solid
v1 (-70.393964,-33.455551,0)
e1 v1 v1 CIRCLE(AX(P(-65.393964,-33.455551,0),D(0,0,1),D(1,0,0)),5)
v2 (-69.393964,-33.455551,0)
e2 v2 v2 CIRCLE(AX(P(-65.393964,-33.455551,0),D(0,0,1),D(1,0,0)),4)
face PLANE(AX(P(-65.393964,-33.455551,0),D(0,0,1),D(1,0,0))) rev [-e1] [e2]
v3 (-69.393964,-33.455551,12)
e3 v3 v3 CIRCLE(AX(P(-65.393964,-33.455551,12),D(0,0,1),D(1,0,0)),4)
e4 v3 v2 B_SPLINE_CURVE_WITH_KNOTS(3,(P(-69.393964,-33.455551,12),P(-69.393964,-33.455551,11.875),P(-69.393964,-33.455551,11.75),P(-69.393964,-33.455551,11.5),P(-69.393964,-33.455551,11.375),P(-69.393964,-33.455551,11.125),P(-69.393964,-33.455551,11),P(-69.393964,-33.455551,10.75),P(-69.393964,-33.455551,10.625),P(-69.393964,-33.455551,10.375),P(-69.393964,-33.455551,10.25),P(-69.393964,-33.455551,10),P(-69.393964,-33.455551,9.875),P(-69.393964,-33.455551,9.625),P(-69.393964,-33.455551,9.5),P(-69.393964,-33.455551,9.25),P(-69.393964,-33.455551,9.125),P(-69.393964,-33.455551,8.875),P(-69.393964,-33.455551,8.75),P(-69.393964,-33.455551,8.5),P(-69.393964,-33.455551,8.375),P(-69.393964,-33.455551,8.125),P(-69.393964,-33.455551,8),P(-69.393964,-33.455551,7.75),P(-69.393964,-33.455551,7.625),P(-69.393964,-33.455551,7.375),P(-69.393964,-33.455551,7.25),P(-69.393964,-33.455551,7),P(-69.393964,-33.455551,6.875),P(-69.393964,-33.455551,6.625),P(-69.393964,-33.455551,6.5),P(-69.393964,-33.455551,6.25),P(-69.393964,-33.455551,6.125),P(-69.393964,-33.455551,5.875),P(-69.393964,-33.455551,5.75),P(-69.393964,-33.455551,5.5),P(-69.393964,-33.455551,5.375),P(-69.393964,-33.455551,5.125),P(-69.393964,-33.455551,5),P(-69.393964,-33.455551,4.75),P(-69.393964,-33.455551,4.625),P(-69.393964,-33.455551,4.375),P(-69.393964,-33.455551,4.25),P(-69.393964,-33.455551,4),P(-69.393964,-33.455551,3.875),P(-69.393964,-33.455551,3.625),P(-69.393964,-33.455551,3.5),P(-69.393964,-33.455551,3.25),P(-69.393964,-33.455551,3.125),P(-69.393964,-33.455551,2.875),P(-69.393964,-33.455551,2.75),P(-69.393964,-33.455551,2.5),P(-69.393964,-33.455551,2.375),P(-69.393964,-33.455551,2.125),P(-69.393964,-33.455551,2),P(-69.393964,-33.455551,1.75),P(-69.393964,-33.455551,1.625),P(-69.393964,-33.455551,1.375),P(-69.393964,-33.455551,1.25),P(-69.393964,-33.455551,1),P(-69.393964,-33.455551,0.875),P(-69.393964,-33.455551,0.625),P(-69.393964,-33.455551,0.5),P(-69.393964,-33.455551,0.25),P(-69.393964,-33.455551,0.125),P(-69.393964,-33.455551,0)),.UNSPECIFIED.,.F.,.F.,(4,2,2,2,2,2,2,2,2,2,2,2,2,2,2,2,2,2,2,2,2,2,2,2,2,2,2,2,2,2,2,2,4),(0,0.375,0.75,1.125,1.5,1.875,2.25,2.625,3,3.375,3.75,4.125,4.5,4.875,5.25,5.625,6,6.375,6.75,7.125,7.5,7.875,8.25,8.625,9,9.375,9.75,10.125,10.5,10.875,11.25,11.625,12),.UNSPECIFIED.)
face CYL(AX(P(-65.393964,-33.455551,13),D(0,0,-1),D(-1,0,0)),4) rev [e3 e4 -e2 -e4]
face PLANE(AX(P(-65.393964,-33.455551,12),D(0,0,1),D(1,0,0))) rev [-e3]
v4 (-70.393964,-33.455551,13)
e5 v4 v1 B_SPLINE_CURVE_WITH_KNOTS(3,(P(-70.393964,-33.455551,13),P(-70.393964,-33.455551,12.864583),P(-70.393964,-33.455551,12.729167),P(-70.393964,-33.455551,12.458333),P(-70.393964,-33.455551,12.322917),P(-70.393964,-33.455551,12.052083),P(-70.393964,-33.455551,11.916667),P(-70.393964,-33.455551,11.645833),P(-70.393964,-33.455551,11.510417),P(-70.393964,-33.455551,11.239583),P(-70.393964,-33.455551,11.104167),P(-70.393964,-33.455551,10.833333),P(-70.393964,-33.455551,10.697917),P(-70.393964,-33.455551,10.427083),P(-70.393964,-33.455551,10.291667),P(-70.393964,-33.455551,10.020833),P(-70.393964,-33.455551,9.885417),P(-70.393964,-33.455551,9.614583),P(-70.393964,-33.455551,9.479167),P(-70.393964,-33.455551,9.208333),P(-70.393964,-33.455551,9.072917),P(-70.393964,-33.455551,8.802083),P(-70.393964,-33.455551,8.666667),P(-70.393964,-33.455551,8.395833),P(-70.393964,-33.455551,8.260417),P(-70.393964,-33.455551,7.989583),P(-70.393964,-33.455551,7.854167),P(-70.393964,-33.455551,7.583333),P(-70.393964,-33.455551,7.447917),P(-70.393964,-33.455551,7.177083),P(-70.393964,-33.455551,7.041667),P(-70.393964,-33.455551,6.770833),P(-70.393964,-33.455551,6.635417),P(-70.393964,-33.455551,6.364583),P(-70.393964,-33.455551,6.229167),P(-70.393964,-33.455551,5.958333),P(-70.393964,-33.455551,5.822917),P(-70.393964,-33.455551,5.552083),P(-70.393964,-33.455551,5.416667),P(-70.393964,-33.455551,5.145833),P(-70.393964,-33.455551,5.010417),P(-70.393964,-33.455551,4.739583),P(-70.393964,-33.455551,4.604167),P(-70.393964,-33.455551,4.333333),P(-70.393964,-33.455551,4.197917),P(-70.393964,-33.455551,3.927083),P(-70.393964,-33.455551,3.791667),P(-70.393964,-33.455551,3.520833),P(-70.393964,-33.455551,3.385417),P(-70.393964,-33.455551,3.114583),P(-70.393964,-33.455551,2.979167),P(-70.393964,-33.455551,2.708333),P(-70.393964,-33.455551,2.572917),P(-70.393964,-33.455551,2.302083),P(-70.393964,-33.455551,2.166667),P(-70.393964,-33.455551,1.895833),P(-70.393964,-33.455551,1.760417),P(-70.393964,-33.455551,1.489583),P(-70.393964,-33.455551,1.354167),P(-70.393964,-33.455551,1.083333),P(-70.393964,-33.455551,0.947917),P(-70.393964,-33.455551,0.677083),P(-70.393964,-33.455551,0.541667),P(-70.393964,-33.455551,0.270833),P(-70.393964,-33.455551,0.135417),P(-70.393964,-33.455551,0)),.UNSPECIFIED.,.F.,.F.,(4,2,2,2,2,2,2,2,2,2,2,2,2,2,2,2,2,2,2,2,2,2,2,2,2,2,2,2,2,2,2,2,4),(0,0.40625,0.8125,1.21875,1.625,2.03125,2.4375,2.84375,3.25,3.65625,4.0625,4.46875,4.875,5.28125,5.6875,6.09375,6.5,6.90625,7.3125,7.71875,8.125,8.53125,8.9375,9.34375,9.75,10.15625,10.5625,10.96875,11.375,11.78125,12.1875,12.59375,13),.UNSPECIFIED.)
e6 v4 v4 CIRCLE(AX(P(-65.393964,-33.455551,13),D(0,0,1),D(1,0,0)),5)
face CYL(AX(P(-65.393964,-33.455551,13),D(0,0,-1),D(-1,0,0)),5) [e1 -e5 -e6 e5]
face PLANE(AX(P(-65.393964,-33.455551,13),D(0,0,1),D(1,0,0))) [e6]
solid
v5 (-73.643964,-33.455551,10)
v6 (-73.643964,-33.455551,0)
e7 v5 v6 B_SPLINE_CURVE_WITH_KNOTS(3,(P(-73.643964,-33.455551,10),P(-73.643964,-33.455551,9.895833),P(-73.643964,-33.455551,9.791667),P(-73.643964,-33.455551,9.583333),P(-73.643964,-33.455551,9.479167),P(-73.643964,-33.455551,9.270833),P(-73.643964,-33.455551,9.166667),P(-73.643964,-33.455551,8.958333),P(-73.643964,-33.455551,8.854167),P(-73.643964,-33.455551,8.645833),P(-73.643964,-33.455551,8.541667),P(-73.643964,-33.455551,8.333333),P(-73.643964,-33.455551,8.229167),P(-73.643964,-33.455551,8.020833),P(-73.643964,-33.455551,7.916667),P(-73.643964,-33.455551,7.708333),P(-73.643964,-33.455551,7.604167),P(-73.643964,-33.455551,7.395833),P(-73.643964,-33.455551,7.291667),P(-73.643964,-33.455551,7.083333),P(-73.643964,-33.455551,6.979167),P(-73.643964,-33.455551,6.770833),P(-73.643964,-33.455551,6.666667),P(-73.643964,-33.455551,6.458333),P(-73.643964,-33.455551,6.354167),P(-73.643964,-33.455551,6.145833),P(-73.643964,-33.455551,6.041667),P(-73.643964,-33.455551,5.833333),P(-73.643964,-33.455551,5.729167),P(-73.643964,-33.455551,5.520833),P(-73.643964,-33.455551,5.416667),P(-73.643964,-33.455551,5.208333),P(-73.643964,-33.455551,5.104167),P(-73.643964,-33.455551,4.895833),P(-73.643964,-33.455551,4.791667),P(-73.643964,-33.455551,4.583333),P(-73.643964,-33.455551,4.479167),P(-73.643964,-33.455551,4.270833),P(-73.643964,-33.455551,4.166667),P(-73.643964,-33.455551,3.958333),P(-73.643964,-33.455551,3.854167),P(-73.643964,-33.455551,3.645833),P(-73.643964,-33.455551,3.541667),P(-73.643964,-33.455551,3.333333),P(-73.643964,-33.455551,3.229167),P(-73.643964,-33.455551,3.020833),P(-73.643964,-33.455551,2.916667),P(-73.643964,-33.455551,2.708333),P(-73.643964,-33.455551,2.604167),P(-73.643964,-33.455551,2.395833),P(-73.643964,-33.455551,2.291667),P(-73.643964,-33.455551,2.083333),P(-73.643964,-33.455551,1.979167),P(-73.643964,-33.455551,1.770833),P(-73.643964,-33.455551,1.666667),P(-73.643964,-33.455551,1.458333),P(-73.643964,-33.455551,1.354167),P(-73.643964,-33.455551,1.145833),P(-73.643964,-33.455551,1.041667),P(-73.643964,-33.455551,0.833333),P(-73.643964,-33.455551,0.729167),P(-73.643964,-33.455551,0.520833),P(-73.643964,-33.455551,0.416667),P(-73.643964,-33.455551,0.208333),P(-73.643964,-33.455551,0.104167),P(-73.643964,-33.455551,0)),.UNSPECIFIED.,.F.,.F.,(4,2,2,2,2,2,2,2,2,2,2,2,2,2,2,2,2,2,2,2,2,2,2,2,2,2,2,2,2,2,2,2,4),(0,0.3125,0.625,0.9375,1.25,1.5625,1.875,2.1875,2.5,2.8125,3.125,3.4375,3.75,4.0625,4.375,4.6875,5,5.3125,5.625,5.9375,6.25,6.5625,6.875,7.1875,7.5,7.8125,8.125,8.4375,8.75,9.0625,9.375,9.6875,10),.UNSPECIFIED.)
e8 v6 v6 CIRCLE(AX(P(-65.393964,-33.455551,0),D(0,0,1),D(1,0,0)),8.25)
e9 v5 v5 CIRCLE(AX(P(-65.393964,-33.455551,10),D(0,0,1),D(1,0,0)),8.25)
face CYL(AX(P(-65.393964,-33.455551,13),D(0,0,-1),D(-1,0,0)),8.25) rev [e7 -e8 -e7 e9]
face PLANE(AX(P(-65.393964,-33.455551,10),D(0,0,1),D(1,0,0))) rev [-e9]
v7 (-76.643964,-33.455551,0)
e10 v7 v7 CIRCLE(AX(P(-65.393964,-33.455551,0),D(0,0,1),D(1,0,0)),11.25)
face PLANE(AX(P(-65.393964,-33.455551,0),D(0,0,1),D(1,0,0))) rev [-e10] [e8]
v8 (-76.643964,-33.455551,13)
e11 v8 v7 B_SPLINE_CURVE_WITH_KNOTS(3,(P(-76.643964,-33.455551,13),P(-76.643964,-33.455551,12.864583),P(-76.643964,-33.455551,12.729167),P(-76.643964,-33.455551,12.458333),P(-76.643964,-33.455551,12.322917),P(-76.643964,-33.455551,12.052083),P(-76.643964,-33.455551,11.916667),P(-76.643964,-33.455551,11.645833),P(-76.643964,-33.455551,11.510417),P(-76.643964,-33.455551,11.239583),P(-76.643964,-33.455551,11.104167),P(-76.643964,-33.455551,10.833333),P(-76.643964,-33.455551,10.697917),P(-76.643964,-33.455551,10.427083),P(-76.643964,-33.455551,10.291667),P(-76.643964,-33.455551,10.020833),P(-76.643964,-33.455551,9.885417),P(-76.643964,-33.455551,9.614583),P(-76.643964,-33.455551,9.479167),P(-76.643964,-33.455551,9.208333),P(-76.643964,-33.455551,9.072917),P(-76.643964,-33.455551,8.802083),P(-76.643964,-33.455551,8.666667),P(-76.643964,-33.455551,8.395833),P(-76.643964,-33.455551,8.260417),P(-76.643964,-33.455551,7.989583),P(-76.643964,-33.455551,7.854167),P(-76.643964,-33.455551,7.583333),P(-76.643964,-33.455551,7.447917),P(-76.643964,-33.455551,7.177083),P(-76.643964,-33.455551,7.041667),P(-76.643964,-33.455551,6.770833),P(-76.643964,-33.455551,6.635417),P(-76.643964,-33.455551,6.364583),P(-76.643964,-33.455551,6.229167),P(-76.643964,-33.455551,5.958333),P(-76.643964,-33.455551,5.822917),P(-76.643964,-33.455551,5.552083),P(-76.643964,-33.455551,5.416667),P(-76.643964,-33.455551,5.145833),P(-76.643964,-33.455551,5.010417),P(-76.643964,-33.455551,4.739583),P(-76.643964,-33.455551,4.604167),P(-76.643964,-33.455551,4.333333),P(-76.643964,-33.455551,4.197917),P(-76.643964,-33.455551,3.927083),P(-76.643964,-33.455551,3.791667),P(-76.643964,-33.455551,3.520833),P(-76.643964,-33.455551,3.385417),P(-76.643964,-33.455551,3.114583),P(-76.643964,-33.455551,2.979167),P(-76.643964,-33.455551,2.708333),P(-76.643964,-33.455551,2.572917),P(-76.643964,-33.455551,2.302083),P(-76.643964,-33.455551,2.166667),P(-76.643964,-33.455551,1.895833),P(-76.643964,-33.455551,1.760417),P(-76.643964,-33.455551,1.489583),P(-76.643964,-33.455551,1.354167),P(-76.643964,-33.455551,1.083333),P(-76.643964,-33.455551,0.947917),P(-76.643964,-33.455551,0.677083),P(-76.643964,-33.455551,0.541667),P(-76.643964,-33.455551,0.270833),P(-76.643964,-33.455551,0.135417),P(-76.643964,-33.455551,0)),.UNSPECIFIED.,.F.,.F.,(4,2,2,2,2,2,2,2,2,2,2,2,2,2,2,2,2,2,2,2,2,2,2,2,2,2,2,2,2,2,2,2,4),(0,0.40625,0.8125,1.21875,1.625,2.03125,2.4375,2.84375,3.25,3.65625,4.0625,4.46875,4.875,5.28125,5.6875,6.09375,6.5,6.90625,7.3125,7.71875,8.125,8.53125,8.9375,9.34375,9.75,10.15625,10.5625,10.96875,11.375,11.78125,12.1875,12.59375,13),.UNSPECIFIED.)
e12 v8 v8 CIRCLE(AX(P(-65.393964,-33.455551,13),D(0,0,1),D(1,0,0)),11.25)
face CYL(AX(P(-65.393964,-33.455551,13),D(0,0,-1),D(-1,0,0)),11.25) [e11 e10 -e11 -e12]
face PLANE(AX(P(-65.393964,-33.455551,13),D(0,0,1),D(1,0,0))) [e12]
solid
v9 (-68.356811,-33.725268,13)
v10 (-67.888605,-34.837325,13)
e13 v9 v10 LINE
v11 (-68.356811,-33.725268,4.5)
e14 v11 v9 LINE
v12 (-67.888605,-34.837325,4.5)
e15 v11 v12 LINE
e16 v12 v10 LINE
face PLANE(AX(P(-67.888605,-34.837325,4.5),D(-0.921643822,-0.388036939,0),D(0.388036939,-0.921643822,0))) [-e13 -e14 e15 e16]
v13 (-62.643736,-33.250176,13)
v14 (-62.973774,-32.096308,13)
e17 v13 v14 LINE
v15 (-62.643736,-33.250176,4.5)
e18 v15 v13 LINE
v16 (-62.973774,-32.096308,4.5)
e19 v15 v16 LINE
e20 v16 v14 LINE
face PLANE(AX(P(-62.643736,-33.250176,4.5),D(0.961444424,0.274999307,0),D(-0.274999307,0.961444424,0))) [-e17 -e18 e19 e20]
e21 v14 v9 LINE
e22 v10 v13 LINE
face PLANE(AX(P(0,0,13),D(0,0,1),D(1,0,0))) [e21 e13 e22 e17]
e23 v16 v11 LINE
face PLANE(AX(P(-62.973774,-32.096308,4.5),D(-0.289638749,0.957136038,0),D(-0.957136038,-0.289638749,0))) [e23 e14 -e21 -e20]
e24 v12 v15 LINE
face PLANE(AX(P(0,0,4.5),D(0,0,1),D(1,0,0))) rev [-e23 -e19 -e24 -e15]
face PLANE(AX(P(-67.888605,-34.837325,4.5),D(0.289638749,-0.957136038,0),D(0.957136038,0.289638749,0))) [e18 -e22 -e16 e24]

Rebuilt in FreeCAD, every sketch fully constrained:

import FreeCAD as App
import Part
import Sketcher


def faces_at(feature, points):
    """Names of the faces that lie closest to the given points."""
    faces = feature.Shape.Faces
    near = lambda p: min(range(len(faces)), key=lambda i: faces[i].distToShape(Part.Vertex(*p))[0])
    return sorted({f"Face{near(p) + 1}" for p in points})

doc = App.newDocument("Part")
body = doc.addObject("PartDesign::Body", "Body")

# Sketch on XY plane
sketch1 = body.newObject("Sketcher::SketchObject", "Sketch")
sketch1.AttachmentSupport = (doc.getObject("XY_Plane"), [""])
sketch1.MapMode = "FlatFace"
sketch1.addGeometry(Part.Circle(App.Vector(-65, -33, 0), App.Vector(0, 0, 1), 11), False)
sketch1.addConstraint([
    Sketcher.Constraint("Diameter", 0, 22.5),
    Sketcher.Constraint("DistanceY", 0, 3, -1, 1, 33.455551),
    Sketcher.Constraint("DistanceX", 0, 3, -1, 1, 65.393964),
])
pad1 = body.newObject("PartDesign::Pad", "Pad")
pad1.Profile = sketch1
pad1.Length = 13
doc.recompute()

thickness = body.newObject("PartDesign::Thickness", "Thickness")
thickness.Base = (pad1, faces_at(pad1, [(-65.394, -33.456, 0)]))
thickness.Value = 3
thickness.Reversed = True
thickness.Join = "Intersection"
body2 = doc.addObject("PartDesign::Body", "Body001")

# Sketch on XY plane
sketch2 = body2.newObject("Sketcher::SketchObject", "Sketch001")
sketch2.AttachmentSupport = (doc.getObject("XY_Plane001"), [""])
sketch2.MapMode = "FlatFace"
sketch2.addGeometry(Part.Circle(App.Vector(-65, -33, 0), App.Vector(0, 0, 1), 5), False)
sketch2.addConstraint([
    Sketcher.Constraint("Diameter", 0, 10.0),
    Sketcher.Constraint("DistanceY", 0, 3, -1, 1, 33.455551),
    Sketcher.Constraint("DistanceX", 0, 3, -1, 1, 65.393964),
])
pad2 = body2.newObject("PartDesign::Pad", "Pad001")
pad2.Profile = sketch2
pad2.Length = 13
doc.recompute()

thickness2 = body2.newObject("PartDesign::Thickness", "Thickness001")
thickness2.Base = (pad2, faces_at(pad2, [(-65.394, -33.456, 0)]))
thickness2.Value = 1
thickness2.Reversed = True
thickness2.Join = "Intersection"
body3 = doc.addObject("PartDesign::Body", "Body002")

# Sketch on XY plane
sketch3 = body3.newObject("Sketcher::SketchObject", "Sketch002")
sketch3.AttachmentSupport = (doc.getObject("XY_Plane002"), [""])
sketch3.MapMode = "FlatFace"
sketch3.AttachmentOffset = App.Placement(App.Vector(0, 0, 13), App.Rotation())
sketch3.addGeometry([
    Part.LineSegment(App.Vector(-67.9, -34.8, 0), App.Vector(-62.6, -33.3, 0)),
    Part.LineSegment(App.Vector(-62.6, -33.3, 0), App.Vector(-63, -32.1, 0)),
    Part.LineSegment(App.Vector(-63, -32.1, 0), App.Vector(-68.4, -33.7, 0)),
    Part.LineSegment(App.Vector(-68.4, -33.7, 0), App.Vector(-67.9, -34.8, 0)),
], False)
sketch3.addConstraint([
    Sketcher.Constraint("Coincident", 0, 2, 1, 1),
    Sketcher.Constraint("Coincident", 1, 2, 2, 1),
    Sketcher.Constraint("Coincident", 2, 2, 3, 1),
    Sketcher.Constraint("Coincident", 3, 2, 0, 1),
    Sketcher.Constraint("Parallel", 0, 2),
    Sketcher.Constraint("Distance", 3, 1.206601),
    Sketcher.Constraint("Distance", 1, 1.20014),
    Sketcher.Constraint("Distance", 2, 5.624109),
    Sketcher.Constraint("DistanceY", 1, 2, -1, 1, 32.096308),
    Sketcher.Constraint("DistanceX", 2, 2, -1, 1, 68.356811),
    Sketcher.Constraint("DistanceY", 2, 2, 1, 2, 1.62896),
    Sketcher.Constraint("DistanceX", 3, 2, 0, 2, 5.244869),
])
pad3 = body3.newObject("PartDesign::Pad", "Pad002")
pad3.Profile = sketch3
pad3.Length = 8.5
pad3.Reversed = True

doc.recompute()
